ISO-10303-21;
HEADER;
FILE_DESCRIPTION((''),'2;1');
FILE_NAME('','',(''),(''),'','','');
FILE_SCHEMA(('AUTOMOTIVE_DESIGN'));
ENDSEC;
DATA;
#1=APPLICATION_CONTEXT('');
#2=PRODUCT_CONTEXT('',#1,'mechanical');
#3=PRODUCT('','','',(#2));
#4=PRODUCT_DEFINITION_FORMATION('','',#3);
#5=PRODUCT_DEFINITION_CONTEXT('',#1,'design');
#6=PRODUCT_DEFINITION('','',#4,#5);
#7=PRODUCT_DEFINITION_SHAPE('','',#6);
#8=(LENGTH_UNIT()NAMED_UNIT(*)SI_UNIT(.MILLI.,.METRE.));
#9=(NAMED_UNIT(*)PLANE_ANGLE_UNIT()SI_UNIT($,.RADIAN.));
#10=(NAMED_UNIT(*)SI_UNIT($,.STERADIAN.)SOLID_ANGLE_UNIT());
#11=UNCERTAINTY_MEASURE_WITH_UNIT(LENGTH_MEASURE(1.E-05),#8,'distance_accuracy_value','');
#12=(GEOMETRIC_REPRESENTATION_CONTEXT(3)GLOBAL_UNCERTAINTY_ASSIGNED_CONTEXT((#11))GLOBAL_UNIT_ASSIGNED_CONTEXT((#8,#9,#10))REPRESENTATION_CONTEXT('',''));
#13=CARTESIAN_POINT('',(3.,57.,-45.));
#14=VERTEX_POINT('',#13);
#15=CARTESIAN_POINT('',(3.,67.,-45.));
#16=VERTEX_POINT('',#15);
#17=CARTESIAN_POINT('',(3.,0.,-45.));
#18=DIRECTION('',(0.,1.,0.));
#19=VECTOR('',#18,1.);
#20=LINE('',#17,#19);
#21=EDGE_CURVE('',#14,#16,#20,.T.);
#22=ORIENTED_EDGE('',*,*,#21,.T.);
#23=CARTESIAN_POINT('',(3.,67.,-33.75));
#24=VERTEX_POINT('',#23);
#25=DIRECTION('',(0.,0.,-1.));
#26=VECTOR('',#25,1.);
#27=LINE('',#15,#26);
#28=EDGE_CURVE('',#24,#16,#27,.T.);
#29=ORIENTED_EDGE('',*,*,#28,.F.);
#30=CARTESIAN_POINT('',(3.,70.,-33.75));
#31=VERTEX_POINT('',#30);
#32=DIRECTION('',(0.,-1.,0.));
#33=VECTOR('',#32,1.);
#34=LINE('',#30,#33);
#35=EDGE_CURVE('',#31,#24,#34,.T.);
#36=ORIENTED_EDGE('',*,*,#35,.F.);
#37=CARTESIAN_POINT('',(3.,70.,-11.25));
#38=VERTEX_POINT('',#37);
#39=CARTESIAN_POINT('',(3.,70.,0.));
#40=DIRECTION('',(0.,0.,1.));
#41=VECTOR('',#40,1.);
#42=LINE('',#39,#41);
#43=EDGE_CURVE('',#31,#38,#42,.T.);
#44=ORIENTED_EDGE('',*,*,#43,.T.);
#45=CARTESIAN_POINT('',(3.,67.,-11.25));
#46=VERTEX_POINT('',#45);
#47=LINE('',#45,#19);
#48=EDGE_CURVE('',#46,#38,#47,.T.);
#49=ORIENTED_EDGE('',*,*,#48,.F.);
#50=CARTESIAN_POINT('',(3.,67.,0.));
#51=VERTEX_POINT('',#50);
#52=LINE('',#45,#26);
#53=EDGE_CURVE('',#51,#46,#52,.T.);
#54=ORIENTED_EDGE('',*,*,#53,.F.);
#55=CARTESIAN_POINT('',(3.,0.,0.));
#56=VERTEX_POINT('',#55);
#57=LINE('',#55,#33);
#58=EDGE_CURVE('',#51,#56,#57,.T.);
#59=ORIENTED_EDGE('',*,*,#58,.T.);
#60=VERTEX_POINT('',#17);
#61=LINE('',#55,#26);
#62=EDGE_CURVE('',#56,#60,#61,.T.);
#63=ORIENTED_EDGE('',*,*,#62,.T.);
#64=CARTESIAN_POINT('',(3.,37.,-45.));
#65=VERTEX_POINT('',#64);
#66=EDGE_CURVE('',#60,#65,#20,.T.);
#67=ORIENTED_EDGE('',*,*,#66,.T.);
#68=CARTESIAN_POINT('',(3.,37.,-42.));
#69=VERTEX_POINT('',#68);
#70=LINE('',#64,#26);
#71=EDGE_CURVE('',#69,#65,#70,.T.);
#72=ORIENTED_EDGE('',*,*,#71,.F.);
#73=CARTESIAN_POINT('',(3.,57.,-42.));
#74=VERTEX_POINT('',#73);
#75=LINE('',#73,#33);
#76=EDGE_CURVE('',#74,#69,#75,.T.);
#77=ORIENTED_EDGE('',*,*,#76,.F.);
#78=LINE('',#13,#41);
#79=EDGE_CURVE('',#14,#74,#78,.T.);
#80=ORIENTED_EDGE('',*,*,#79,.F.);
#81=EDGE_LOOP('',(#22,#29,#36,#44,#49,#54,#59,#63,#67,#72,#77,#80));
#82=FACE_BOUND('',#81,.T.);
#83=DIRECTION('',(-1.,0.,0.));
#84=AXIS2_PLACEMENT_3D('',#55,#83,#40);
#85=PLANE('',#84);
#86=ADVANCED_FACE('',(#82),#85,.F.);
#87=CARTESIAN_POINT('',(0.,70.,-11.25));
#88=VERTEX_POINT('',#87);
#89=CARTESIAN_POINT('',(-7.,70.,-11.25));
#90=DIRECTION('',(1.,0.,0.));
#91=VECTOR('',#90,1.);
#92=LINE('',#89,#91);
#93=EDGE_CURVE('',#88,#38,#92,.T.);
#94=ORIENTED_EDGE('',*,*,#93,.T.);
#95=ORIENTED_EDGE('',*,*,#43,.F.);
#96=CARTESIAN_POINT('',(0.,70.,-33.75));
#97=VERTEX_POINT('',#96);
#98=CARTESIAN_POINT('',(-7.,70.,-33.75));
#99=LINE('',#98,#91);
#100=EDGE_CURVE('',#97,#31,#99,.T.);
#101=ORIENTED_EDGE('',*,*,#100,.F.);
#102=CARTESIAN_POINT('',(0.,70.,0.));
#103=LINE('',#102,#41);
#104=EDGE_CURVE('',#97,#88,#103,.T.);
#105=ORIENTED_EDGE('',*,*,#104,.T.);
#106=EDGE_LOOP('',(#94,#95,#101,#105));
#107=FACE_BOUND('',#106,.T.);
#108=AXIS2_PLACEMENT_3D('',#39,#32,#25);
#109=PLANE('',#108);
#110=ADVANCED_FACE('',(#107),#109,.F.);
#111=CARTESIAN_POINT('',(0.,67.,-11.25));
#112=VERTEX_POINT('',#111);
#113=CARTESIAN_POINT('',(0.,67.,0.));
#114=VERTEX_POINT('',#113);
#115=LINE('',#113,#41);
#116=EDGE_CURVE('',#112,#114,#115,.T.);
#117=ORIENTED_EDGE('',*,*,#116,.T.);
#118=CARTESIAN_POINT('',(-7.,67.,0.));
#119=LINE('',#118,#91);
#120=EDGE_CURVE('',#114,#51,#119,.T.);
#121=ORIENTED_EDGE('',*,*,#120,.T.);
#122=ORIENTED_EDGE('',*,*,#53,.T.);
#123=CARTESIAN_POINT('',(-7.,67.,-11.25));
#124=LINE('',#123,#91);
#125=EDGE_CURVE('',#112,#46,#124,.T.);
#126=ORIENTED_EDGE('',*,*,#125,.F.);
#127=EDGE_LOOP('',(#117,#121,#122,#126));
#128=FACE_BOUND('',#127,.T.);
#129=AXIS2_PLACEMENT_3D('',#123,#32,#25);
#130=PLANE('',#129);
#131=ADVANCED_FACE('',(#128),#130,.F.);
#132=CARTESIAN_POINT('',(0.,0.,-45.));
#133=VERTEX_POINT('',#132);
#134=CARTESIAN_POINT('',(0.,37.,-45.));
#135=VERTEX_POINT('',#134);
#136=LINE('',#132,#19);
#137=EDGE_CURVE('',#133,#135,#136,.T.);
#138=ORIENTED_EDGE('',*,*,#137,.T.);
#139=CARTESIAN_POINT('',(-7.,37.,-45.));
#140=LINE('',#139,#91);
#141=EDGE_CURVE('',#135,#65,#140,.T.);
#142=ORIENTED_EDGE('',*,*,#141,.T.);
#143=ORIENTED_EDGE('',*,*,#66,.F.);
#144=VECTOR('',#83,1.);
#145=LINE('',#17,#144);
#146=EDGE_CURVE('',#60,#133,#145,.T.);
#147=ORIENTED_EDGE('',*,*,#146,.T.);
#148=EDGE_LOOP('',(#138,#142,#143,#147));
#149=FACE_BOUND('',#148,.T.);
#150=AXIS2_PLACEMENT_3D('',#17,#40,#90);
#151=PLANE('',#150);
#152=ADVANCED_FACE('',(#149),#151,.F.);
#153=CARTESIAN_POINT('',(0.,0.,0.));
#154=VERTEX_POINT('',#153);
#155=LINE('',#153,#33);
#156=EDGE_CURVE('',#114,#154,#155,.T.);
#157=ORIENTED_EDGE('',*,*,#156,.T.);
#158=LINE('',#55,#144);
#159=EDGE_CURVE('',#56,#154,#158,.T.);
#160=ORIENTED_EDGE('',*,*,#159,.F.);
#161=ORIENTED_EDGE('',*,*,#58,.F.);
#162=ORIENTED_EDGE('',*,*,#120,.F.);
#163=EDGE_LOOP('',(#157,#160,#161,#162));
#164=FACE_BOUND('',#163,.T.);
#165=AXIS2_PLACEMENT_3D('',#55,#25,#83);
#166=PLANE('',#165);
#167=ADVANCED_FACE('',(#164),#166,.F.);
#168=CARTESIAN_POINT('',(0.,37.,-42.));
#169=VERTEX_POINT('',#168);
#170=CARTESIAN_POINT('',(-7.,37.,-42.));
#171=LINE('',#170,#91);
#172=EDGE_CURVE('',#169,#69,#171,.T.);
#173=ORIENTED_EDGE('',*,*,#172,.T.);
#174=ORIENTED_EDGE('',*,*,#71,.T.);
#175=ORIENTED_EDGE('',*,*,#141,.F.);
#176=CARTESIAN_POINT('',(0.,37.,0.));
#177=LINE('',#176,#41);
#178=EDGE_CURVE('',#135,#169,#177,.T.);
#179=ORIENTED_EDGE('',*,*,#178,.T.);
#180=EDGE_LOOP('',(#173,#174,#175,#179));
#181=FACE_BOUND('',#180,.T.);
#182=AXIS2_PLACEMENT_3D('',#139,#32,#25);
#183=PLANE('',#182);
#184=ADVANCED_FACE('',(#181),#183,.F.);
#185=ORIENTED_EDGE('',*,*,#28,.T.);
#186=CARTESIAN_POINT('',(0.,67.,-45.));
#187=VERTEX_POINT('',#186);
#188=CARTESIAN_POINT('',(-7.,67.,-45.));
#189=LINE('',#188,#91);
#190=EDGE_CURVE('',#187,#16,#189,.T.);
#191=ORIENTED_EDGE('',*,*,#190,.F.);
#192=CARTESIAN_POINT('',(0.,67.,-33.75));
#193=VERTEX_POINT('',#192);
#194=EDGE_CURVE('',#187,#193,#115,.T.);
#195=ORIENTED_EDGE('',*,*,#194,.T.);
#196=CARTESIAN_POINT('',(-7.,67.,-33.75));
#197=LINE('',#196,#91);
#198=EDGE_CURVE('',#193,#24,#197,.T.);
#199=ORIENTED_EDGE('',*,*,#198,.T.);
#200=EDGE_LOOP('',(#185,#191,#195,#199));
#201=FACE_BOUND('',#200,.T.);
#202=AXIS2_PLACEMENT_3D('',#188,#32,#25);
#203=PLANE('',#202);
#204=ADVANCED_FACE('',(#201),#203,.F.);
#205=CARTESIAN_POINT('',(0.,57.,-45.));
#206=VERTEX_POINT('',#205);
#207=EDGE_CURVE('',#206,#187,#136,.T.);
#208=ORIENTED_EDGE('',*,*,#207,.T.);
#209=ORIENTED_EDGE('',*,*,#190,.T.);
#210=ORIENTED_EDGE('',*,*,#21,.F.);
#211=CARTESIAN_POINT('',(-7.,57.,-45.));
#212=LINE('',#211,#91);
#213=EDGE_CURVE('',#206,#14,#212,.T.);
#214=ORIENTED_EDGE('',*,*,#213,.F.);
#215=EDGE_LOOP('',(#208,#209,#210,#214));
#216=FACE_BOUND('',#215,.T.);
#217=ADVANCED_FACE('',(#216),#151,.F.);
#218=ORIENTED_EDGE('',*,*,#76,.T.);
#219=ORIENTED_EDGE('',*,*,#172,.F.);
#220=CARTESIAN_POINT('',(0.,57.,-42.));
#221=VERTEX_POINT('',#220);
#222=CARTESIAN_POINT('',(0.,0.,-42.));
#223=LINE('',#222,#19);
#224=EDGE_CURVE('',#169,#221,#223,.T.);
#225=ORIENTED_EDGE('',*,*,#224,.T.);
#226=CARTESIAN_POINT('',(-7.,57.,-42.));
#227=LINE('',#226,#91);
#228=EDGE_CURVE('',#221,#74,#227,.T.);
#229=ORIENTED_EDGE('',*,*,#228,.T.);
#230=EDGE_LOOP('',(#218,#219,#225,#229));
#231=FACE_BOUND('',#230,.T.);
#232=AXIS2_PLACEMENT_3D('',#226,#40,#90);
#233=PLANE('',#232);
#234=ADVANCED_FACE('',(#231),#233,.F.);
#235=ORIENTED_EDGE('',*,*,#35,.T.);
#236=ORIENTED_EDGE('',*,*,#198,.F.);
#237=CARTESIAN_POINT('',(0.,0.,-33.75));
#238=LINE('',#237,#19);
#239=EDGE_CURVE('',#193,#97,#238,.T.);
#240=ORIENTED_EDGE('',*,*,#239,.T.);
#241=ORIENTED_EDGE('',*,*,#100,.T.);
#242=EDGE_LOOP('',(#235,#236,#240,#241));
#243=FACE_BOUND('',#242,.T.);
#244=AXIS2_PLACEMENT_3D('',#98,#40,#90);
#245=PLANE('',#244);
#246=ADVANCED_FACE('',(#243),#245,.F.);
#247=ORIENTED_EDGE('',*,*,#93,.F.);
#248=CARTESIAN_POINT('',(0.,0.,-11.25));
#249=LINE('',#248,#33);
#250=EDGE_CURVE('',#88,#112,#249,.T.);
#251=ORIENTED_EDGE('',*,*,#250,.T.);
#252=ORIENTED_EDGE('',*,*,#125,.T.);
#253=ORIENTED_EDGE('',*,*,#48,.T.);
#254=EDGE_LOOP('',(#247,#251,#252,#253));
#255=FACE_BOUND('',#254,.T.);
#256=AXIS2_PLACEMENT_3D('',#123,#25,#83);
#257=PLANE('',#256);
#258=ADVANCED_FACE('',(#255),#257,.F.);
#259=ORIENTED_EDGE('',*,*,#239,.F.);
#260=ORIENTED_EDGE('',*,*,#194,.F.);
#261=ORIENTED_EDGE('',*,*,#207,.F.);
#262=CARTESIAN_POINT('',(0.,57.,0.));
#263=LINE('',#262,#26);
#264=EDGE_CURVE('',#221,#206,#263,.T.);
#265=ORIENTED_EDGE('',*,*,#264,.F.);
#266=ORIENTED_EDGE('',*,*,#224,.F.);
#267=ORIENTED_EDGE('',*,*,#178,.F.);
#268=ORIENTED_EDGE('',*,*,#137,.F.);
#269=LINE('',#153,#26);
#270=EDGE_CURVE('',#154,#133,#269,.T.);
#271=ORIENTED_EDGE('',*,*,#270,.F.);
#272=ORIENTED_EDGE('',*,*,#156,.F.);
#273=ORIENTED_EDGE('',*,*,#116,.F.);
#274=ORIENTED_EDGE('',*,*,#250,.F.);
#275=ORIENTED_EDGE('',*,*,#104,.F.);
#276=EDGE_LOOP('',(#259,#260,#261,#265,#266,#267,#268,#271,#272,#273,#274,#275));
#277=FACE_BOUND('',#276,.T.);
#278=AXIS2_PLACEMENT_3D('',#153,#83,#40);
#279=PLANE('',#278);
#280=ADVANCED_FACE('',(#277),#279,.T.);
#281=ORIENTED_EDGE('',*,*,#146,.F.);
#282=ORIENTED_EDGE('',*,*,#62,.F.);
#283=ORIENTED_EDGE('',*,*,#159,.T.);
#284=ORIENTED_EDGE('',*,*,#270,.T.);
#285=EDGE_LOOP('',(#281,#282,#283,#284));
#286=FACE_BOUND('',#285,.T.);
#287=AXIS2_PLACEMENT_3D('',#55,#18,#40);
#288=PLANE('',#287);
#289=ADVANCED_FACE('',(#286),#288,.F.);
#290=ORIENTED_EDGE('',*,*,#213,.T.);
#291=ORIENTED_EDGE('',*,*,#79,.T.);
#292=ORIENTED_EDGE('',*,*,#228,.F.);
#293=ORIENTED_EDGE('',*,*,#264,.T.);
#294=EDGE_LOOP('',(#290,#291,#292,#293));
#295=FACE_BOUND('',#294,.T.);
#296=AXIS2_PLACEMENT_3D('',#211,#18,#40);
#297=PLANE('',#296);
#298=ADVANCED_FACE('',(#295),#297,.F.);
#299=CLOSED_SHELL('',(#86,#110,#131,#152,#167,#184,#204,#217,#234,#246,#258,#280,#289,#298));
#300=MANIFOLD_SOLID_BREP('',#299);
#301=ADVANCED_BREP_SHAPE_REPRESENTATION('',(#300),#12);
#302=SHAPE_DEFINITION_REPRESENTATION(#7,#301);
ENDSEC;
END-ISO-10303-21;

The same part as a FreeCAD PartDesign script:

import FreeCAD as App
import Part
import Sketcher
from FreeCAD import Vector
Q = App.Units.Quantity


def add_polygon(sketch, points):
    """Adds a closed chain of lines whose ends are joined by coincident constraints."""
    first, n = sketch.GeometryCount, len(points)
    for a, b in zip(points, points[1:] + points[:1]):
        sketch.addGeometry(Part.LineSegment(App.Vector(*a, 0), App.Vector(*b, 0)), False)
    for i in range(n):
        sketch.addConstraint(Sketcher.Constraint("Coincident", first + i, 2, first + (i + 1) % n, 1))

doc = App.newDocument("Part")
params = doc.addObject("Spreadsheet::Sheet", "Params")
for row, (alias, value) in enumerate([
    ("sketch1_width", "70 mm"),
    ("sketch1_height", "45 mm"),
    ("pad1_length", "3 mm"),
    ("sketch2_width", "3 mm"),
    ("sketch2_width2", "20 mm"),
    ("sketch2_height", "11.25 mm"),
    ("pocket1_length", "10 mm"),
], start=1):
    params.set(f"A{row}", alias)
    params.set(f"B{row}", "=" + value)
    params.setAlias(f"B{row}", alias)

body = doc.addObject("PartDesign::Body", "Body")

# Sketch on YZ plane
sketch1 = body.newObject("Sketcher::SketchObject", "Sketch")
sketch1.AttachmentSupport = (doc.getObject("YZ_Plane"), [""])
sketch1.MapMode = "FlatFace"
add_polygon(sketch1, [(70, 0), (0, 0), (0, -45), (70, -45)])  # lines 0-3
sketch1.addConstraint([
    Sketcher.Constraint("Horizontal", 0),
    Sketcher.Constraint("Vertical", 1),
    Sketcher.Constraint("Horizontal", 2),
    Sketcher.Constraint("Vertical", 3),
    Sketcher.Constraint("Coincident", 0, 2, -1, 1),
    Sketcher.Constraint("DistanceX", 0, 2, 0, 1, Q("70 mm")),
    Sketcher.Constraint("DistanceY", 1, 2, 1, 1, Q("45 mm")),
])
sketch1.setExpression("Constraints[9]", "Params.sketch1_width")
sketch1.setExpression("Constraints[10]", "Params.sketch1_height")
pad1 = body.newObject("PartDesign::Pad", "Pad")
pad1.Profile = sketch1
pad1.setExpression("Length", "Params.pad1_length")

# Sketch on YZ plane
sketch2 = body.newObject("Sketcher::SketchObject", "Sketch001")
sketch2.AttachmentSupport = (doc.getObject("YZ_Plane"), [""])
sketch2.MapMode = "FlatFace"
sketch2.AttachmentOffset = App.Placement(Vector(0, 0, 3), App.Rotation())
add_polygon(sketch2, [(70, -33.8), (67, -33.8), (67, -45), (70, -45)])  # lines 0-3
add_polygon(sketch2, [(70, 0), (67, 0), (67, -11.2), (70, -11.2)])  # lines 4-7
add_polygon(sketch2, [(57, -42), (37, -42), (37, -45), (57, -45)])  # lines 8-11
sketch2.addConstraint([
    Sketcher.Constraint("Horizontal", 0),
    Sketcher.Constraint("Vertical", 1),
    Sketcher.Constraint("Horizontal", 2),
    Sketcher.Constraint("Vertical", 3),
    Sketcher.Constraint("Horizontal", 4),
    Sketcher.Constraint("Vertical", 5),
    Sketcher.Constraint("Horizontal", 6),
    Sketcher.Constraint("Vertical", 7),
    Sketcher.Constraint("Horizontal", 8),
    Sketcher.Constraint("Vertical", 9),
    Sketcher.Constraint("Horizontal", 10),
    Sketcher.Constraint("Vertical", 11),
    Sketcher.Constraint("PointOnObject", 4, 2, -1),
    Sketcher.Constraint("Horizontal", 2, 2, 9, 2),
    Sketcher.Constraint("Vertical", 1, 2, 4, 2),
    Sketcher.Constraint("Vertical", 3, 2, 6, 2),
    Sketcher.Constraint("Equal", 3, 5),
    Sketcher.Constraint("Equal", 6, 9),
    Sketcher.Constraint("DistanceX", 0, 2, 0, 1, Q("3 mm")),
    Sketcher.Constraint("DistanceX", 8, 2, 8, 1, Q("20 mm")),
    Sketcher.Constraint("DistanceX", -1, 1, 0, 2, Q("67 mm")),
    Sketcher.Constraint("DistanceY", 1, 2, -1, 1, Q("45 mm")),
    Sketcher.Constraint("DistanceX", -1, 1, 8, 2, Q("37 mm")),
    Sketcher.Constraint("DistanceY", 1, 2, 1, 1, Q("11.25 mm")),
])
sketch2.setExpression("Constraints[30]", "Params.sketch2_width")
sketch2.setExpression("Constraints[31]", "Params.sketch2_width2")
sketch2.setExpression("Constraints[35]", "Params.sketch2_height")
pocket1 = body.newObject("PartDesign::Pocket", "Pocket")
pocket1.Profile = sketch2
pocket1.setExpression("Length", "Params.pocket1_length")

doc.recompute()
